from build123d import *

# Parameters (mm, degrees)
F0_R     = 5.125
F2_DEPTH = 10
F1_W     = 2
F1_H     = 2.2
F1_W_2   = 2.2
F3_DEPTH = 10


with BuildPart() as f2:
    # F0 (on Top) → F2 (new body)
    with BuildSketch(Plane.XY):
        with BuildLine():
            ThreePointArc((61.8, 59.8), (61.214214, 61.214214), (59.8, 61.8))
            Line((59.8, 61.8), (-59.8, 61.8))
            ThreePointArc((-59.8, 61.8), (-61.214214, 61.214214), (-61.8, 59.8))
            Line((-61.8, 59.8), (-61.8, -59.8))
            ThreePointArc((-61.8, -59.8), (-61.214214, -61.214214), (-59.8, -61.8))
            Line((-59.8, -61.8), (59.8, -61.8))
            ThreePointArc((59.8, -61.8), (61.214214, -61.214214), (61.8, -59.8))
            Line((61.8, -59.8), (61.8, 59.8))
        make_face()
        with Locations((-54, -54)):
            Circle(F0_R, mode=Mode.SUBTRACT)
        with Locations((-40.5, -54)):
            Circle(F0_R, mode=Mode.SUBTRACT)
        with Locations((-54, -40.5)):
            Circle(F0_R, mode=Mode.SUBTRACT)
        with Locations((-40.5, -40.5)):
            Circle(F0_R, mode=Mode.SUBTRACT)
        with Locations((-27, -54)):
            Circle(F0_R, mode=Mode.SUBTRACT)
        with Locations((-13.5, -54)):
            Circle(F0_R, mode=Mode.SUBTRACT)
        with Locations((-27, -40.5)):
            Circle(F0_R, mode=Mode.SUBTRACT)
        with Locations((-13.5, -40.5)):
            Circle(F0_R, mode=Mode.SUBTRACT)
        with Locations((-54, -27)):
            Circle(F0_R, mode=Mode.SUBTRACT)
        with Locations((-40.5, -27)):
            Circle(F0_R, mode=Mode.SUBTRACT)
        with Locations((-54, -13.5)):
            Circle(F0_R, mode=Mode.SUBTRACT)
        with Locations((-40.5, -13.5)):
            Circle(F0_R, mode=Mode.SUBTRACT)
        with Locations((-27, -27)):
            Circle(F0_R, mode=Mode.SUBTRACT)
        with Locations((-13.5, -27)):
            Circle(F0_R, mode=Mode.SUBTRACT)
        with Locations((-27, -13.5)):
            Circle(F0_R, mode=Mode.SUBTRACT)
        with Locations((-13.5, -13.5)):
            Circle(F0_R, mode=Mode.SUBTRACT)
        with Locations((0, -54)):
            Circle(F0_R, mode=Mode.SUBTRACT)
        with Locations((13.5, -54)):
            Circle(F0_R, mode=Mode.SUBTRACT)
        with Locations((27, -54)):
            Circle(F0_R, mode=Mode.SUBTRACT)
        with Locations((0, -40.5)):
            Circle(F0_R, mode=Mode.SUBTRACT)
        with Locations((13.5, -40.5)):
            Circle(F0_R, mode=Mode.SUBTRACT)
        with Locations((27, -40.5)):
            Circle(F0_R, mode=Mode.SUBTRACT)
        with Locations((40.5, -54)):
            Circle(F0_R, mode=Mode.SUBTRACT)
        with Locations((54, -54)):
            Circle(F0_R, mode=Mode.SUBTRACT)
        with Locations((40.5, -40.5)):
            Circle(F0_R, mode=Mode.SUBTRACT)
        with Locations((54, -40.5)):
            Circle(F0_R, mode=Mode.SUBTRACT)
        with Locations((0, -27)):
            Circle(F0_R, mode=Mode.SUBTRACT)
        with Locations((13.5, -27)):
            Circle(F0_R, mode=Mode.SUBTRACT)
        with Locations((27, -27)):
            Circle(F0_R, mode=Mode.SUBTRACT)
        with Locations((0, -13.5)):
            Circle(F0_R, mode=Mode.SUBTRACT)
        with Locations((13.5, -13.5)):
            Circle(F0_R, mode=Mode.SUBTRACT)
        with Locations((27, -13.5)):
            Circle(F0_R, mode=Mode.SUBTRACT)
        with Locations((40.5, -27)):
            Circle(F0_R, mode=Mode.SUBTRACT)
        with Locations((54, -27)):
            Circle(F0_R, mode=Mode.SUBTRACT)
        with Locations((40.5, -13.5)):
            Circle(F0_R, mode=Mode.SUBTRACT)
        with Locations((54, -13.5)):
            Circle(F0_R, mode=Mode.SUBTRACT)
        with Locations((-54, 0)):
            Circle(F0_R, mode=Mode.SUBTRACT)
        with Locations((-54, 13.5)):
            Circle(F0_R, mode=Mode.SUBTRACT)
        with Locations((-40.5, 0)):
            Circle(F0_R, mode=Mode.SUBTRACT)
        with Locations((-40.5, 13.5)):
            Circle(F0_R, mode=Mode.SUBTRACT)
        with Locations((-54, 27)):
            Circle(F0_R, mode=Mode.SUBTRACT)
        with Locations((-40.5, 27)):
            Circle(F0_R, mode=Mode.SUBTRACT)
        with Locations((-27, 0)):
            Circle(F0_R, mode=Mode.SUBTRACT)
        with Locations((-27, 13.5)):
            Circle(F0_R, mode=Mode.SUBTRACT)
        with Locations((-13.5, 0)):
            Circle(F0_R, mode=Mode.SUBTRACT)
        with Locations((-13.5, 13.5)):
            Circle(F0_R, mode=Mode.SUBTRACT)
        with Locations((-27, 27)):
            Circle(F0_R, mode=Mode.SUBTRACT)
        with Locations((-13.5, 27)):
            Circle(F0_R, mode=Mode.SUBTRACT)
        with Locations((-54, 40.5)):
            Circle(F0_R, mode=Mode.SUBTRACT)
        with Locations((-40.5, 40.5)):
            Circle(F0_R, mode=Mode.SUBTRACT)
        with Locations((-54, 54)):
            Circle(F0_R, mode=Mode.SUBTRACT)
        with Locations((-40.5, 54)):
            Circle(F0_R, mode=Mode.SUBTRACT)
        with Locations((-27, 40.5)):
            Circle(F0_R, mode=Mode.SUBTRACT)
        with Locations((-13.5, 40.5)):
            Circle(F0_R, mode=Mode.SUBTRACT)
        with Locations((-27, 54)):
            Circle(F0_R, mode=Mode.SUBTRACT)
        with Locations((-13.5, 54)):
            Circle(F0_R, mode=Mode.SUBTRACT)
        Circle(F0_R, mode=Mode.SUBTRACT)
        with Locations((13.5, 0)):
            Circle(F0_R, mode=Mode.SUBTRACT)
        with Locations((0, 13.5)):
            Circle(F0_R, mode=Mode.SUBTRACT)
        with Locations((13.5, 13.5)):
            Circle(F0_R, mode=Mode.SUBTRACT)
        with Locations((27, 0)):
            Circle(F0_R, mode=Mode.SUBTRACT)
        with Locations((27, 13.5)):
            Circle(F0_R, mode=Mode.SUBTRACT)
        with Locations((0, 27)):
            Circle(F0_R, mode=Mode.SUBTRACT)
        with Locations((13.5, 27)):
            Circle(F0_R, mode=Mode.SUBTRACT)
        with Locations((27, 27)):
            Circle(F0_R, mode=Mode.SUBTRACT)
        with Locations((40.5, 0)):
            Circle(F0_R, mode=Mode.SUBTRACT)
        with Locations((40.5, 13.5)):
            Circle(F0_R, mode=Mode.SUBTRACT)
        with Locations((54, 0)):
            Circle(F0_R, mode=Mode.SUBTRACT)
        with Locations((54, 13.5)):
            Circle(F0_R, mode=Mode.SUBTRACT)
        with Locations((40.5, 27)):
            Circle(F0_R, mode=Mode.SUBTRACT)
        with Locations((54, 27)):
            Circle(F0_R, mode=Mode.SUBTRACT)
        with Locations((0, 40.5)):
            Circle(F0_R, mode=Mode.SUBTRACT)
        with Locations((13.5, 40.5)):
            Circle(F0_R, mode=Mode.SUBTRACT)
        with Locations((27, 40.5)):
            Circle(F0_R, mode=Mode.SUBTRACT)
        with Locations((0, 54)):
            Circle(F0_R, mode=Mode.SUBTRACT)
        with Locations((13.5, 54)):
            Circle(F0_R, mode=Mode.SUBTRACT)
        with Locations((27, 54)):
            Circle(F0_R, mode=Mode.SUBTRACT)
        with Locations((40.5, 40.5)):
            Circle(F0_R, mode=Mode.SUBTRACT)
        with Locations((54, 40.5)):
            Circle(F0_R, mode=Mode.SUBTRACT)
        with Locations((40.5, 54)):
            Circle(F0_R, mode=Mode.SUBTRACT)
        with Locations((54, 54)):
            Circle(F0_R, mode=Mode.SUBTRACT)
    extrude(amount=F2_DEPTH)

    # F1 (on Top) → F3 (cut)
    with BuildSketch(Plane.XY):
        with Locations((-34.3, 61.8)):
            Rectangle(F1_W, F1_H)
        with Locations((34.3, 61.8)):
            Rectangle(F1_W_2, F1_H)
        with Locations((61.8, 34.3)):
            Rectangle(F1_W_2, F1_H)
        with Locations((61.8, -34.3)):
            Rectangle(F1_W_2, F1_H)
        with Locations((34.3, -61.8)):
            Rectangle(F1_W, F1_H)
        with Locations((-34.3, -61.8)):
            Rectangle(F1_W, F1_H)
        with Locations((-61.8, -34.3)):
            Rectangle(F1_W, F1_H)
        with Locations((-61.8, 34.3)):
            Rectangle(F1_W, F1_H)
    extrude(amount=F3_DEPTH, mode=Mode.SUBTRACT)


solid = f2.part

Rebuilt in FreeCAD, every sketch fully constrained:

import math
import FreeCAD as App
import Part
import Sketcher
from FreeCAD import Vector
Q = App.Units.Quantity


def add_polygon(sketch, points):
    """Adds a closed chain of lines whose ends are joined by coincident constraints."""
    first, n = sketch.GeometryCount, len(points)
    for a, b in zip(points, points[1:] + points[:1]):
        sketch.addGeometry(Part.LineSegment(App.Vector(*a, 0), App.Vector(*b, 0)), False)
    for i in range(n):
        sketch.addConstraint(Sketcher.Constraint("Coincident", first + i, 2, first + (i + 1) % n, 1))

doc = App.newDocument("Part")
body = doc.addObject("PartDesign::Body", "Body")

# Sketch on XY plane
sketch1 = doc.addObject("Sketcher::SketchObject", "Sketch")
body.addObject(sketch1)
sketch1.AttachmentSupport = (doc.XY_Plane, [""])
sketch1.MapMode = "FlatFace"
sketch1.addGeometry([
    Part.ArcOfCircle(Part.Circle(Vector(59.8, 59.8, 0), Vector(0, 0, 1), 2), math.radians(0), math.radians(90)),  # 0
    Part.LineSegment(Vector(59.8, 61.8, 0), Vector(-59.8, 61.8, 0)),  # 1
    Part.ArcOfCircle(Part.Circle(Vector(-59.8, 59.8, 0), Vector(0, 0, 1), 2), math.radians(90), math.radians(180)),  # 2
    Part.LineSegment(Vector(-61.8, 59.8, 0), Vector(-61.8, -59.8, 0)),  # 3
    Part.ArcOfCircle(Part.Circle(Vector(-59.8, -59.8, 0), Vector(0, 0, 1), 2), math.radians(180), math.radians(270)),  # 4
    Part.LineSegment(Vector(-59.8, -61.8, 0), Vector(59.8, -61.8, 0)),  # 5
    Part.ArcOfCircle(Part.Circle(Vector(59.8, -59.8, 0), Vector(0, 0, 1), 2), math.radians(-90), math.radians(0)),  # 6
    Part.LineSegment(Vector(61.8, -59.8, 0), Vector(61.8, 59.8, 0)),  # 7
    Part.Circle(Vector(-54, -54, 0), Vector(0, 0, 1), 5.1),  # 8
    Part.Circle(Vector(-40.5, -54, 0), Vector(0, 0, 1), 5.1),  # 9
    Part.Circle(Vector(-54, -40.5, 0), Vector(0, 0, 1), 5.1),  # 10
    Part.Circle(Vector(-40.5, -40.5, 0), Vector(0, 0, 1), 5.1),  # 11
    Part.Circle(Vector(-27, -54, 0), Vector(0, 0, 1), 5.1),  # 12
    Part.Circle(Vector(-13.5, -54, 0), Vector(0, 0, 1), 5.1),  # 13
    Part.Circle(Vector(-27, -40.5, 0), Vector(0, 0, 1), 5.1),  # 14
    Part.Circle(Vector(-13.5, -40.5, 0), Vector(0, 0, 1), 5.1),  # 15
    Part.Circle(Vector(-54, -27, 0), Vector(0, 0, 1), 5.1),  # 16
    Part.Circle(Vector(-40.5, -27, 0), Vector(0, 0, 1), 5.1),  # 17
    Part.Circle(Vector(-54, -13.5, 0), Vector(0, 0, 1), 5.1),  # 18
    Part.Circle(Vector(-40.5, -13.5, 0), Vector(0, 0, 1), 5.1),  # 19
    Part.Circle(Vector(-27, -27, 0), Vector(0, 0, 1), 5.1),  # 20
    Part.Circle(Vector(-13.5, -27, 0), Vector(0, 0, 1), 5.1),  # 21
    Part.Circle(Vector(-27, -13.5, 0), Vector(0, 0, 1), 5.1),  # 22
    Part.Circle(Vector(-13.5, -13.5, 0), Vector(0, 0, 1), 5.1),  # 23
    Part.Circle(Vector(0, -54, 0), Vector(0, 0, 1), 5.1),  # 24
    Part.Circle(Vector(13.5, -54, 0), Vector(0, 0, 1), 5.1),  # 25
    Part.Circle(Vector(27, -54, 0), Vector(0, 0, 1), 5.1),  # 26
    Part.Circle(Vector(0, -40.5, 0), Vector(0, 0, 1), 5.1),  # 27
    Part.Circle(Vector(13.5, -40.5, 0), Vector(0, 0, 1), 5.1),  # 28
    Part.Circle(Vector(27, -40.5, 0), Vector(0, 0, 1), 5.1),  # 29
    Part.Circle(Vector(40.5, -54, 0), Vector(0, 0, 1), 5.1),  # 30
    Part.Circle(Vector(54, -54, 0), Vector(0, 0, 1), 5.1),  # 31
    Part.Circle(Vector(40.5, -40.5, 0), Vector(0, 0, 1), 5.1),  # 32
    Part.Circle(Vector(54, -40.5, 0), Vector(0, 0, 1), 5.1),  # 33
    Part.Circle(Vector(0, -27, 0), Vector(0, 0, 1), 5.1),  # 34
    Part.Circle(Vector(13.5, -27, 0), Vector(0, 0, 1), 5.1),  # 35
    Part.Circle(Vector(27, -27, 0), Vector(0, 0, 1), 5.1),  # 36
    Part.Circle(Vector(0, -13.5, 0), Vector(0, 0, 1), 5.1),  # 37
    Part.Circle(Vector(13.5, -13.5, 0), Vector(0, 0, 1), 5.1),  # 38
    Part.Circle(Vector(27, -13.5, 0), Vector(0, 0, 1), 5.1),  # 39
    Part.Circle(Vector(40.5, -27, 0), Vector(0, 0, 1), 5.1),  # 40
    Part.Circle(Vector(54, -27, 0), Vector(0, 0, 1), 5.1),  # 41
    Part.Circle(Vector(40.5, -13.5, 0), Vector(0, 0, 1), 5.1),  # 42
    Part.Circle(Vector(54, -13.5, 0), Vector(0, 0, 1), 5.1),  # 43
    Part.Circle(Vector(-54, 0, 0), Vector(0, 0, 1), 5.1),  # 44
    Part.Circle(Vector(-54, 13.5, 0), Vector(0, 0, 1), 5.1),  # 45
    Part.Circle(Vector(-40.5, 0, 0), Vector(0, 0, 1), 5.1),  # 46
    Part.Circle(Vector(-40.5, 13.5, 0), Vector(0, 0, 1), 5.1),  # 47
    Part.Circle(Vector(-54, 27, 0), Vector(0, 0, 1), 5.1),  # 48
    Part.Circle(Vector(-40.5, 27, 0), Vector(0, 0, 1), 5.1),  # 49
    Part.Circle(Vector(-27, 0, 0), Vector(0, 0, 1), 5.1),  # 50
    Part.Circle(Vector(-27, 13.5, 0), Vector(0, 0, 1), 5.1),  # 51
    Part.Circle(Vector(-13.5, 0, 0), Vector(0, 0, 1), 5.1),  # 52
    Part.Circle(Vector(-13.5, 13.5, 0), Vector(0, 0, 1), 5.1),  # 53
    Part.Circle(Vector(-27, 27, 0), Vector(0, 0, 1), 5.1),  # 54
    Part.Circle(Vector(-13.5, 27, 0), Vector(0, 0, 1), 5.1),  # 55
    Part.Circle(Vector(-54, 40.5, 0), Vector(0, 0, 1), 5.1),  # 56
    Part.Circle(Vector(-40.5, 40.5, 0), Vector(0, 0, 1), 5.1),  # 57
    Part.Circle(Vector(-54, 54, 0), Vector(0, 0, 1), 5.1),  # 58
    Part.Circle(Vector(-40.5, 54, 0), Vector(0, 0, 1), 5.1),  # 59
    Part.Circle(Vector(-27, 40.5, 0), Vector(0, 0, 1), 5.1),  # 60
    Part.Circle(Vector(-13.5, 40.5, 0), Vector(0, 0, 1), 5.1),  # 61
    Part.Circle(Vector(-27, 54, 0), Vector(0, 0, 1), 5.1),  # 62
    Part.Circle(Vector(-13.5, 54, 0), Vector(0, 0, 1), 5.1),  # 63
    Part.Circle(Vector(0, 0, 0), Vector(0, 0, 1), 5.1),  # 64
    Part.Circle(Vector(13.5, 0, 0), Vector(0, 0, 1), 5.1),  # 65
    Part.Circle(Vector(0, 13.5, 0), Vector(0, 0, 1), 5.1),  # 66
    Part.Circle(Vector(13.5, 13.5, 0), Vector(0, 0, 1), 5.1),  # 67
    Part.Circle(Vector(27, 0, 0), Vector(0, 0, 1), 5.1),  # 68
    Part.Circle(Vector(27, 13.5, 0), Vector(0, 0, 1), 5.1),  # 69
    Part.Circle(Vector(0, 27, 0), Vector(0, 0, 1), 5.1),  # 70
    Part.Circle(Vector(13.5, 27, 0), Vector(0, 0, 1), 5.1),  # 71
    Part.Circle(Vector(27, 27, 0), Vector(0, 0, 1), 5.1),  # 72
    Part.Circle(Vector(40.5, 0, 0), Vector(0, 0, 1), 5.1),  # 73
    Part.Circle(Vector(40.5, 13.5, 0), Vector(0, 0, 1), 5.1),  # 74
    Part.Circle(Vector(54, 0, 0), Vector(0, 0, 1), 5.1),  # 75
    Part.Circle(Vector(54, 13.5, 0), Vector(0, 0, 1), 5.1),  # 76
    Part.Circle(Vector(40.5, 27, 0), Vector(0, 0, 1), 5.1),  # 77
    Part.Circle(Vector(54, 27, 0), Vector(0, 0, 1), 5.1),  # 78
    Part.Circle(Vector(0, 40.5, 0), Vector(0, 0, 1), 5.1),  # 79
    Part.Circle(Vector(13.5, 40.5, 0), Vector(0, 0, 1), 5.1),  # 80
    Part.Circle(Vector(27, 40.5, 0), Vector(0, 0, 1), 5.1),  # 81
    Part.Circle(Vector(0, 54, 0), Vector(0, 0, 1), 5.1),  # 82
    Part.Circle(Vector(13.5, 54, 0), Vector(0, 0, 1), 5.1),  # 83
    Part.Circle(Vector(27, 54, 0), Vector(0, 0, 1), 5.1),  # 84
    Part.Circle(Vector(40.5, 40.5, 0), Vector(0, 0, 1), 5.1),  # 85
    Part.Circle(Vector(54, 40.5, 0), Vector(0, 0, 1), 5.1),  # 86
    Part.Circle(Vector(40.5, 54, 0), Vector(0, 0, 1), 5.1),  # 87
    Part.Circle(Vector(54, 54, 0), Vector(0, 0, 1), 5.1),  # 88
], False)
sketch1.addConstraint([
    Sketcher.Constraint("Tangent", 0, 2, 1, 1),
    Sketcher.Constraint("Tangent", 1, 2, 2, 1),
    Sketcher.Constraint("Tangent", 2, 2, 3, 1),
    Sketcher.Constraint("Tangent", 3, 2, 4, 1),
    Sketcher.Constraint("Tangent", 4, 2, 5, 1),
    Sketcher.Constraint("Tangent", 5, 2, 6, 1),
    Sketcher.Constraint("Tangent", 6, 2, 7, 1),
    Sketcher.Constraint("Tangent", 7, 2, 0, 1),
    Sketcher.Constraint("Horizontal", 1),
    Sketcher.Constraint("Vertical", 3),
    Sketcher.Constraint("Horizontal", 5),
    Sketcher.Constraint("Vertical", 7),
    Sketcher.Constraint("Coincident", 64, 3, -1, 1),
    Sketcher.Constraint("Equal", 0, 2),
    Sketcher.Constraint("Equal", 2, 4),
    Sketcher.Constraint("Equal", 4, 6),
    Sketcher.Constraint("Equal", 8, 9),
    Sketcher.Constraint("Equal", 9, 10),
    Sketcher.Constraint("Equal", 10, 11),
    Sketcher.Constraint("Equal", 11, 12),
    Sketcher.Constraint("Equal", 12, 13),
    Sketcher.Constraint("Equal", 13, 14),
    Sketcher.Constraint("Equal", 14, 15),
    Sketcher.Constraint("Equal", 15, 16),
    Sketcher.Constraint("Equal", 16, 17),
    Sketcher.Constraint("Equal", 17, 18),
    Sketcher.Constraint("Equal", 18, 19),
    Sketcher.Constraint("Equal", 19, 20),
    Sketcher.Constraint("Equal", 20, 21),
    Sketcher.Constraint("Equal", 21, 22),
    Sketcher.Constraint("Equal", 22, 23),
    Sketcher.Constraint("Equal", 23, 24),
    Sketcher.Constraint("Equal", 24, 25),
    Sketcher.Constraint("Equal", 25, 26),
    Sketcher.Constraint("Equal", 26, 27),
    Sketcher.Constraint("Equal", 27, 28),
    Sketcher.Constraint("Equal", 28, 29),
    Sketcher.Constraint("Equal", 29, 30),
    Sketcher.Constraint("Equal", 30, 31),
    Sketcher.Constraint("Equal", 31, 32),
    Sketcher.Constraint("Equal", 32, 33),
    Sketcher.Constraint("Equal", 33, 34),
    Sketcher.Constraint("Equal", 34, 35),
    Sketcher.Constraint("Equal", 35, 36),
    Sketcher.Constraint("Equal", 36, 37),
    Sketcher.Constraint("Equal", 37, 38),
    Sketcher.Constraint("Equal", 38, 39),
    Sketcher.Constraint("Equal", 39, 40),
    Sketcher.Constraint("Equal", 40, 41),
    Sketcher.Constraint("Equal", 41, 42),
    Sketcher.Constraint("Equal", 42, 43),
    Sketcher.Constraint("Equal", 43, 44),
    Sketcher.Constraint("Equal", 44, 45),
    Sketcher.Constraint("Equal", 45, 46),
    Sketcher.Constraint("Equal", 46, 47),
    Sketcher.Constraint("Equal", 47, 48),
    Sketcher.Constraint("Equal", 48, 49),
    Sketcher.Constraint("Equal", 49, 50),
    Sketcher.Constraint("Equal", 50, 51),
    Sketcher.Constraint("Equal", 51, 52),
    Sketcher.Constraint("Equal", 52, 53),
    Sketcher.Constraint("Equal", 53, 54),
    Sketcher.Constraint("Equal", 54, 55),
    Sketcher.Constraint("Equal", 55, 56),
    Sketcher.Constraint("Equal", 56, 57),
    Sketcher.Constraint("Equal", 57, 58),
    Sketcher.Constraint("Equal", 58, 59),
    Sketcher.Constraint("Equal", 59, 60),
    Sketcher.Constraint("Equal", 60, 61),
    Sketcher.Constraint("Equal", 61, 62),
    Sketcher.Constraint("Equal", 62, 63),
    Sketcher.Constraint("Equal", 63, 64),
    Sketcher.Constraint("Equal", 64, 65),
    Sketcher.Constraint("Equal", 65, 66),
    Sketcher.Constraint("Equal", 66, 67),
    Sketcher.Constraint("Equal", 67, 68),
    Sketcher.Constraint("Equal", 68, 69),
    Sketcher.Constraint("Equal", 69, 70),
    Sketcher.Constraint("Equal", 70, 71),
    Sketcher.Constraint("Equal", 71, 72),
    Sketcher.Constraint("Equal", 72, 73),
    Sketcher.Constraint("Equal", 73, 74),
    Sketcher.Constraint("Equal", 74, 75),
    Sketcher.Constraint("Equal", 75, 76),
    Sketcher.Constraint("Equal", 76, 77),
    Sketcher.Constraint("Equal", 77, 78),
    Sketcher.Constraint("Equal", 78, 79),
    Sketcher.Constraint("Equal", 79, 80),
    Sketcher.Constraint("Equal", 80, 81),
    Sketcher.Constraint("Equal", 81, 82),
    Sketcher.Constraint("Equal", 82, 83),
    Sketcher.Constraint("Equal", 83, 84),
    Sketcher.Constraint("Equal", 84, 85),
    Sketcher.Constraint("Equal", 85, 86),
    Sketcher.Constraint("Equal", 86, 87),
    Sketcher.Constraint("Equal", 87, 88),
    Sketcher.Constraint("Symmetric", 0, 3, 4, 3, -1, 1),
    Sketcher.Constraint("Symmetric", 43, 3, 45, 3, -1, 1),
    Sketcher.Constraint("Symmetric", 42, 3, 47, 3, -1, 1),
    Sketcher.Constraint("Symmetric", 41, 3, 48, 3, -1, 1),
    Sketcher.Constraint("Symmetric", 40, 3, 49, 3, -1, 1),
    Sketcher.Constraint("Symmetric", 39, 3, 51, 3, -1, 1),
    Sketcher.Constraint("Symmetric", 38, 3, 53, 3, -1, 1),
    Sketcher.Constraint("Symmetric", 36, 3, 54, 3, -1, 1),
    Sketcher.Constraint("Symmetric", 35, 3, 55, 3, -1, 1),
    Sketcher.Constraint("Symmetric", 33, 3, 56, 3, -1, 1),
    Sketcher.Constraint("Symmetric", 32, 3, 57, 3, -1, 1),
    Sketcher.Constraint("Symmetric", 31, 3, 58, 3, -1, 1),
    Sketcher.Constraint("Symmetric", 30, 3, 59, 3, -1, 1),
    Sketcher.Constraint("Symmetric", 29, 3, 60, 3, -1, 1),
    Sketcher.Constraint("Symmetric", 28, 3, 61, 3, -1, 1),
    Sketcher.Constraint("Symmetric", 26, 3, 62, 3, -1, 1),
    Sketcher.Constraint("Symmetric", 25, 3, 63, 3, -1, 1),
    Sketcher.Constraint("Symmetric", 52, 3, 65, 3, -1, 1),
    Sketcher.Constraint("Symmetric", 37, 3, 66, 3, -1, 1),
    Sketcher.Constraint("Symmetric", 23, 3, 67, 3, -1, 1),
    Sketcher.Constraint("Symmetric", 50, 3, 68, 3, -1, 1),
    Sketcher.Constraint("Symmetric", 22, 3, 69, 3, -1, 1),
    Sketcher.Constraint("Symmetric", 34, 3, 70, 3, -1, 1),
    Sketcher.Constraint("Symmetric", 21, 3, 71, 3, -1, 1),
    Sketcher.Constraint("Symmetric", 20, 3, 72, 3, -1, 1),
    Sketcher.Constraint("Symmetric", 46, 3, 73, 3, -1, 1),
    Sketcher.Constraint("Symmetric", 19, 3, 74, 3, -1, 1),
    Sketcher.Constraint("Symmetric", 44, 3, 75, 3, -1, 1),
    Sketcher.Constraint("Symmetric", 18, 3, 76, 3, -1, 1),
    Sketcher.Constraint("Symmetric", 17, 3, 77, 3, -1, 1),
    Sketcher.Constraint("Symmetric", 16, 3, 78, 3, -1, 1),
    Sketcher.Constraint("Symmetric", 27, 3, 79, 3, -1, 1),
    Sketcher.Constraint("Symmetric", 15, 3, 80, 3, -1, 1),
    Sketcher.Constraint("Symmetric", 14, 3, 81, 3, -1, 1),
    Sketcher.Constraint("Symmetric", 24, 3, 82, 3, -1, 1),
    Sketcher.Constraint("Symmetric", 13, 3, 83, 3, -1, 1),
    Sketcher.Constraint("Symmetric", 12, 3, 84, 3, -1, 1),
    Sketcher.Constraint("Symmetric", 11, 3, 85, 3, -1, 1),
    Sketcher.Constraint("Symmetric", 10, 3, 86, 3, -1, 1),
    Sketcher.Constraint("Symmetric", 9, 3, 87, 3, -1, 1),
    Sketcher.Constraint("Symmetric", 8, 3, 88, 3, -1, 1),
    Sketcher.Constraint("Symmetric", 13, 3, 25, 3, -2),
    Sketcher.Constraint("Symmetric", 12, 3, 26, 3, -2),
    Sketcher.Constraint("Symmetric", 15, 3, 28, 3, -2),
    Sketcher.Constraint("Symmetric", 14, 3, 29, 3, -2),
    Sketcher.Constraint("Symmetric", 9, 3, 30, 3, -2),
    Sketcher.Constraint("Symmetric", 8, 3, 31, 3, -2),
    Sketcher.Constraint("Symmetric", 11, 3, 32, 3, -2),
    Sketcher.Constraint("Symmetric", 10, 3, 33, 3, -2),
    Sketcher.Constraint("Symmetric", 21, 3, 35, 3, -2),
    Sketcher.Constraint("Symmetric", 20, 3, 36, 3, -2),
    Sketcher.Constraint("Symmetric", 23, 3, 38, 3, -2),
    Sketcher.Constraint("Symmetric", 22, 3, 39, 3, -2),
    Sketcher.Constraint("Symmetric", 17, 3, 40, 3, -2),
    Sketcher.Constraint("Symmetric", 16, 3, 41, 3, -2),
    Sketcher.Constraint("Symmetric", 19, 3, 42, 3, -2),
    Sketcher.Constraint("Symmetric", 18, 3, 43, 3, -2),
    Sketcher.Constraint("PointOnObject", 24, 3, -2),
    Sketcher.Constraint("PointOnObject", 27, 3, -2),
    Sketcher.Constraint("PointOnObject", 34, 3, -2),
    Sketcher.Constraint("PointOnObject", 37, 3, -2),
    Sketcher.Constraint("PointOnObject", 44, 3, -1),
    Sketcher.Constraint("PointOnObject", 46, 3, -1),
    Sketcher.Constraint("PointOnObject", 50, 3, -1),
    Sketcher.Constraint("PointOnObject", 52, 3, -1),
    Sketcher.Constraint("Horizontal", 8, 3, 9, 3),
    Sketcher.Constraint("Horizontal", 10, 3, 11, 3),
    Sketcher.Constraint("Horizontal", 9, 3, 12, 3),
    Sketcher.Constraint("Horizontal", 12, 3, 13, 3),
    Sketcher.Constraint("Horizontal", 11, 3, 14, 3),
    Sketcher.Constraint("Horizontal", 14, 3, 15, 3),
    Sketcher.Constraint("Horizontal", 16, 3, 17, 3),
    Sketcher.Constraint("Horizontal", 18, 3, 19, 3),
    Sketcher.Constraint("Horizontal", 17, 3, 20, 3),
    Sketcher.Constraint("Horizontal", 20, 3, 21, 3),
    Sketcher.Constraint("Horizontal", 19, 3, 22, 3),
    Sketcher.Constraint("Horizontal", 22, 3, 23, 3),
    Sketcher.Constraint("Horizontal", 13, 3, 24, 3),
    Sketcher.Constraint("Horizontal", 15, 3, 27, 3),
    Sketcher.Constraint("Horizontal", 21, 3, 34, 3),
    Sketcher.Constraint("Horizontal", 23, 3, 37, 3),
    Sketcher.Constraint("Vertical", 8, 3, 10, 3),
    Sketcher.Constraint("Vertical", 9, 3, 11, 3),
    Sketcher.Constraint("Vertical", 12, 3, 14, 3),
    Sketcher.Constraint("Vertical", 13, 3, 15, 3),
    Sketcher.Constraint("Vertical", 10, 3, 16, 3),
    Sketcher.Constraint("Vertical", 11, 3, 17, 3),
    Sketcher.Constraint("Vertical", 16, 3, 18, 3),
    Sketcher.Constraint("Vertical", 17, 3, 19, 3),
    Sketcher.Constraint("Vertical", 14, 3, 20, 3),
    Sketcher.Constraint("Vertical", 15, 3, 21, 3),
    Sketcher.Constraint("Vertical", 20, 3, 22, 3),
    Sketcher.Constraint("Vertical", 21, 3, 23, 3),
    Sketcher.Constraint("Vertical", 18, 3, 44, 3),
    Sketcher.Constraint("Vertical", 19, 3, 46, 3),
    Sketcher.Constraint("Vertical", 22, 3, 50, 3),
    Sketcher.Constraint("Vertical", 23, 3, 52, 3),
    Sketcher.Constraint("Equal", 5, 3),
    Sketcher.Constraint("Radius", 0, Q("1.999999 mm")),
    Sketcher.Constraint("Diameter", 8, Q("10.25 mm")),
    Sketcher.Constraint("DistanceX", 1, 2, 1, 1, Q("119.6 mm")),
    Sketcher.Constraint("DistanceX", 8, 3, -1, 1, Q("54 mm")),
    Sketcher.Constraint("DistanceY", 8, 3, -1, 1, Q("54 mm")),
    Sketcher.Constraint("DistanceX", 12, 3, -1, 1, Q("27 mm")),
    Sketcher.Constraint("DistanceY", 16, 3, -1, 1, Q("27 mm")),
    Sketcher.Constraint("DistanceX", 9, 3, -1, 1, Q("40.5 mm")),
    Sketcher.Constraint("DistanceY", 10, 3, -1, 1, Q("40.5 mm")),
    Sketcher.Constraint("DistanceX", 13, 3, -1, 1, Q("13.5 mm")),
    Sketcher.Constraint("DistanceY", 18, 3, -1, 1, Q("13.5 mm")),
])
pad1 = doc.addObject("PartDesign::Pad", "Pad")
body.addObject(pad1)
pad1.Profile = sketch1
pad1.Length = 10

# Sketch on XY plane
sketch2 = doc.addObject("Sketcher::SketchObject", "Sketch001")
body.addObject(sketch2)
sketch2.AttachmentSupport = (doc.XY_Plane, [""])
sketch2.MapMode = "FlatFace"
add_polygon(sketch2, [(-35.3, 62.9), (-35.3, 60.7), (-33.3, 60.7), (-33.3, 62.9)])  # lines 0-3
add_polygon(sketch2, [(33.2, 62.9), (33.2, 60.7), (35.4, 60.7), (35.4, 62.9)])  # lines 4-7
add_polygon(sketch2, [(60.7, 35.4), (60.7, 33.2), (62.9, 33.2), (62.9, 35.4)])  # lines 8-11
add_polygon(sketch2, [(60.7, -33.2), (60.7, -35.4), (62.9, -35.4), (62.9, -33.2)])  # lines 12-15
add_polygon(sketch2, [(33.3, -60.7), (33.3, -62.9), (35.3, -62.9), (35.3, -60.7)])  # lines 16-19
add_polygon(sketch2, [(-35.3, -60.7), (-35.3, -62.9), (-33.3, -62.9), (-33.3, -60.7)])  # lines 20-23
add_polygon(sketch2, [(-62.8, -33.2), (-62.8, -35.4), (-60.8, -35.4), (-60.8, -33.2)])  # lines 24-27
add_polygon(sketch2, [(-62.8, 35.4), (-62.8, 33.2), (-60.8, 33.2), (-60.8, 35.4)])  # lines 28-31
sketch2.addConstraint([
    Sketcher.Constraint("Vertical", 0),
    Sketcher.Constraint("Horizontal", 1),
    Sketcher.Constraint("Vertical", 2),
    Sketcher.Constraint("Horizontal", 3),
    Sketcher.Constraint("Vertical", 4),
    Sketcher.Constraint("Horizontal", 5),
    Sketcher.Constraint("Vertical", 6),
    Sketcher.Constraint("Horizontal", 7),
    Sketcher.Constraint("Vertical", 8),
    Sketcher.Constraint("Horizontal", 9),
    Sketcher.Constraint("Vertical", 10),
    Sketcher.Constraint("Horizontal", 11),
    Sketcher.Constraint("Vertical", 12),
    Sketcher.Constraint("Horizontal", 13),
    Sketcher.Constraint("Vertical", 14),
    Sketcher.Constraint("Horizontal", 15),
    Sketcher.Constraint("Vertical", 16),
    Sketcher.Constraint("Horizontal", 17),
    Sketcher.Constraint("Vertical", 18),
    Sketcher.Constraint("Horizontal", 19),
    Sketcher.Constraint("Vertical", 20),
    Sketcher.Constraint("Horizontal", 21),
    Sketcher.Constraint("Vertical", 22),
    Sketcher.Constraint("Horizontal", 23),
    Sketcher.Constraint("Vertical", 24),
    Sketcher.Constraint("Horizontal", 25),
    Sketcher.Constraint("Vertical", 26),
    Sketcher.Constraint("Horizontal", 27),
    Sketcher.Constraint("Vertical", 28),
    Sketcher.Constraint("Horizontal", 29),
    Sketcher.Constraint("Vertical", 30),
    Sketcher.Constraint("Horizontal", 31),
    Sketcher.Constraint("Symmetric", 2, 2, 16, 2, -1, 1),
    Sketcher.Constraint("Symmetric", 0, 2, 18, 2, -1, 1),
    Sketcher.Constraint("Symmetric", 17, 2, 20, 2, -2),
    Sketcher.Constraint("Symmetric", 19, 2, 22, 2, -2),
    Sketcher.Constraint("Symmetric", 11, 2, 12, 2, -1),
    Sketcher.Constraint("Symmetric", 9, 2, 14, 2, -1),
    Sketcher.Constraint("Symmetric", 27, 2, 28, 2, -1),
    Sketcher.Constraint("Symmetric", 25, 2, 30, 2, -1),
    Sketcher.Constraint("Horizontal", 1, 2, 4, 2),
    Sketcher.Constraint("Horizontal", 3, 2, 6, 2),
    Sketcher.Constraint("Horizontal", 13, 2, 24, 2),
    Sketcher.Constraint("Horizontal", 15, 2, 26, 2),
    Sketcher.Constraint("Equal", 7, 9),
    Sketcher.Constraint("Equal", 23, 25),
    Sketcher.Constraint("Equal", 15, 0),
    Sketcher.Constraint("Equal", 6, 8),
    Sketcher.Constraint("DistanceX", 1, 1, 1, 2, Q("2 mm")),
    Sketcher.Constraint("DistanceX", 5, 1, 5, 2, Q("2.2 mm")),
    Sketcher.Constraint("DistanceX", 1, 2, 8, 2, Q("94 mm")),
    Sketcher.Constraint("DistanceX", 0, 2, -1, 1, Q("35.3 mm")),
    Sketcher.Constraint("DistanceY", -1, 1, 0, 2, Q("60.7 mm")),
    Sketcher.Constraint("DistanceX", -1, 1, 4, 2, Q("33.2 mm")),
    Sketcher.Constraint("DistanceY", -1, 1, 8, 2, Q("33.2 mm")),
    Sketcher.Constraint("DistanceX", 24, 2, -1, 1, Q("62.8 mm")),
])
pocket1 = doc.addObject("PartDesign::Pocket", "Pocket")
body.addObject(pocket1)
pocket1.Profile = sketch2
pocket1.Length = 10
pocket1.Reversed = True

doc.recompute()
